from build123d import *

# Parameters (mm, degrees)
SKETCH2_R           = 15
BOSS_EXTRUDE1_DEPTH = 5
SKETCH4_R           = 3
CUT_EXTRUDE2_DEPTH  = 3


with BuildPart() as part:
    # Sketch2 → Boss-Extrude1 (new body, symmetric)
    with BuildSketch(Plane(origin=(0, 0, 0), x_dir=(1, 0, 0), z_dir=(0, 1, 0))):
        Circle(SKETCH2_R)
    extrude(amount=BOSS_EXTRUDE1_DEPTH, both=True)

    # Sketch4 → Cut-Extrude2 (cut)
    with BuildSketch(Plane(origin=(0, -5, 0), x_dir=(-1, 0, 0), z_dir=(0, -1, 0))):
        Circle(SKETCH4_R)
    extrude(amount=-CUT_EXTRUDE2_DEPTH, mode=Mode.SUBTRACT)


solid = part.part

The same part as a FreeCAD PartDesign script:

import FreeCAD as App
import Part
import Sketcher

V = App.Vector
Q = App.Units.Quantity

doc = App.newDocument("Part")
body = doc.addObject("PartDesign::Body", "Body")

# Sketch on XZ plane
sketch1 = body.newObject("Sketcher::SketchObject", "Sketch")
sketch1.AttachmentSupport = (doc.getObject("XZ_Plane"), [""])
sketch1.MapMode = "FlatFace"
sketch1.addGeometry(Part.Circle(V(0, 0, 0), V(0, 0, 1), 15), False)
sketch1.addConstraint(Sketcher.Constraint("Coincident", 0, 3, -1, 1))
sketch1.addConstraint(Sketcher.Constraint("Diameter", 0, Q("30 mm")))
pad1 = body.newObject("PartDesign::Pad", "Pad")
pad1.Profile = sketch1
pad1.Length = 10
pad1.Midplane = True

# Sketch on XZ plane
sketch2 = body.newObject("Sketcher::SketchObject", "Sketch001")
sketch2.AttachmentSupport = (doc.getObject("XZ_Plane"), [""])
sketch2.MapMode = "FlatFace"
sketch2.AttachmentOffset = App.Placement(V(0, 0, 5), App.Rotation())
sketch2.addGeometry(Part.Circle(V(0, 0, 0), V(0, 0, 1), 3), False)
sketch2.addConstraint(Sketcher.Constraint("Coincident", 0, 3, -1, 1))
sketch2.addConstraint(Sketcher.Constraint("Diameter", 0, Q("6 mm")))
pocket1 = body.newObject("PartDesign::Pocket", "Pocket")
pocket1.Profile = sketch2
pocket1.Length = 3

doc.recompute()
